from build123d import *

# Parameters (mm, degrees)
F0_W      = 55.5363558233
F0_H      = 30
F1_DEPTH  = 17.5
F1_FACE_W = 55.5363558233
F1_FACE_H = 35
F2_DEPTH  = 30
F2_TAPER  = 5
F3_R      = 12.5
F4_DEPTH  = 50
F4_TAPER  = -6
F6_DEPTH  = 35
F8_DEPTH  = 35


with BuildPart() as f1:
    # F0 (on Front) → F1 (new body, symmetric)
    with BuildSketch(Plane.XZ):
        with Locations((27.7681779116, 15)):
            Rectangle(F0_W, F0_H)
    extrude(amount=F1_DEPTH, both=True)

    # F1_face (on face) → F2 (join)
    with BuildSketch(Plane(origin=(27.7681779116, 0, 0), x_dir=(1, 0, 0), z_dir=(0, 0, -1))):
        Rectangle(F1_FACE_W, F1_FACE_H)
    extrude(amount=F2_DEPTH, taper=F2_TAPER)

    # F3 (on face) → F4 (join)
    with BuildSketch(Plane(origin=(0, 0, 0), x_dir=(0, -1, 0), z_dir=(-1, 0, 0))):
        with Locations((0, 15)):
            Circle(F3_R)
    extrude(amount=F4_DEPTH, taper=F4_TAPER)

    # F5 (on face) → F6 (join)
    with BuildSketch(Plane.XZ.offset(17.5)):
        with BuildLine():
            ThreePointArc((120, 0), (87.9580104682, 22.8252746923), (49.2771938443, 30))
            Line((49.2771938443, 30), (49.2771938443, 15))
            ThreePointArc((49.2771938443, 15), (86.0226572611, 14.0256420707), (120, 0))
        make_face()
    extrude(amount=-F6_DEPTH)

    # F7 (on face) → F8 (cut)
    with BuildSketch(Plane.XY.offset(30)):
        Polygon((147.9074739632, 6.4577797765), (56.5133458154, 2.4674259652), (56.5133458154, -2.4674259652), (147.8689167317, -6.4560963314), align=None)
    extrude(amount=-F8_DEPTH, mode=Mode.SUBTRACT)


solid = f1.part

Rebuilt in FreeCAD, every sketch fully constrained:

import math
import FreeCAD as App
import Part
import Sketcher
Q = App.Units.Quantity

doc = App.newDocument("Part")
body = doc.addObject("PartDesign::Body", "Body")

# Sketch on XZ plane
sketch1 = body.newObject("Sketcher::SketchObject", "Sketch")
sketch1.AttachmentSupport = (doc.getObject("XZ_Plane"), [""])
sketch1.MapMode = "FlatFace"
sketch1.addGeometry([
    Part.LineSegment(App.Vector(0, 30, 0), App.Vector(0, 0, 0)),
    Part.LineSegment(App.Vector(0, 0, 0), App.Vector(56, 0, 0)),
    Part.LineSegment(App.Vector(56, 0, 0), App.Vector(56, 30, 0)),
    Part.LineSegment(App.Vector(56, 30, 0), App.Vector(0, 30, 0)),
], False)
sketch1.addConstraint([
    Sketcher.Constraint("Coincident", 0, 2, 1, 1),
    Sketcher.Constraint("Coincident", 1, 2, 2, 1),
    Sketcher.Constraint("Coincident", 2, 2, 3, 1),
    Sketcher.Constraint("Coincident", 3, 2, 0, 1),
    Sketcher.Constraint("Vertical", 0),
    Sketcher.Constraint("Horizontal", 1),
    Sketcher.Constraint("Vertical", 2),
    Sketcher.Constraint("Horizontal", 3),
    Sketcher.Constraint("Coincident", 0, 2, -1, 1),
    Sketcher.Constraint("DistanceY", 0, 2, 0, 1, Q("30 mm")),
    Sketcher.Constraint("DistanceX", 1, 1, 1, 2, Q("55.536356 mm")),
])
pad1 = body.newObject("PartDesign::Pad", "Pad")
pad1.Profile = sketch1
pad1.Length = 35
pad1.Midplane = True

# Sketch on XY plane
sketch2 = body.newObject("Sketcher::SketchObject", "Sketch001")
sketch2.AttachmentSupport = (doc.getObject("XY_Plane"), [""])
sketch2.MapMode = "FlatFace"
sketch2.addGeometry([
    Part.LineSegment(App.Vector(0, -18, 0), App.Vector(0, 18, 0)),
    Part.LineSegment(App.Vector(0, 18, 0), App.Vector(56, 18, 0)),
    Part.LineSegment(App.Vector(56, 18, 0), App.Vector(56, -18, 0)),
    Part.LineSegment(App.Vector(56, -18, 0), App.Vector(0, -18, 0)),
], False)
sketch2.addConstraint([
    Sketcher.Constraint("Coincident", 0, 2, 1, 1),
    Sketcher.Constraint("Coincident", 1, 2, 2, 1),
    Sketcher.Constraint("Coincident", 2, 2, 3, 1),
    Sketcher.Constraint("Coincident", 3, 2, 0, 1),
    Sketcher.Constraint("Vertical", 0),
    Sketcher.Constraint("Horizontal", 1),
    Sketcher.Constraint("Vertical", 2),
    Sketcher.Constraint("Horizontal", 3),
    Sketcher.Constraint("Symmetric", 0, 2, 3, 2, -1, 1),
    Sketcher.Constraint("DistanceY", 0, 1, 0, 2, Q("35 mm")),
    Sketcher.Constraint("DistanceX", 1, 1, 1, 2, Q("55.536356 mm")),
])
pad2 = body.newObject("PartDesign::Pad", "Pad001")
pad2.Profile = sketch2
pad2.Length = 30
pad2.Reversed = True
pad2.TaperAngle = -5

# Sketch on YZ plane
sketch3 = body.newObject("Sketcher::SketchObject", "Sketch002")
sketch3.AttachmentSupport = (doc.getObject("YZ_Plane"), [""])
sketch3.MapMode = "FlatFace"
sketch3.addGeometry(Part.Circle(App.Vector(0, 15, 0), App.Vector(0, 0, 1), 12), False)
sketch3.addConstraint([
    Sketcher.Constraint("PointOnObject", 0, 3, -2),
    Sketcher.Constraint("Diameter", 0, Q("25 mm")),
    Sketcher.Constraint("DistanceY", -1, 1, 0, 3, Q("15 mm")),
])
pad3 = body.newObject("PartDesign::Pad", "Pad002")
pad3.Profile = sketch3
pad3.Length = 50
pad3.Reversed = True
pad3.TaperAngle = 6

# Sketch on XZ plane
sketch4 = body.newObject("Sketcher::SketchObject", "Sketch003")
sketch4.AttachmentSupport = (doc.getObject("XZ_Plane"), [""])
sketch4.MapMode = "FlatFace"
sketch4.AttachmentOffset = App.Placement(App.Vector(0, 0, 17.5), App.Rotation())
sketch4.addGeometry([
    Part.ArcOfCircle(Part.Circle(App.Vector(52, -61, 0), App.Vector(0, 0, 1), 91), math.radians(42), math.radians(92)),
    Part.LineSegment(App.Vector(49, 30, 0), App.Vector(49, 15, 0)),
    Part.ArcOfCircle(Part.Circle(App.Vector(65, -85, 0), App.Vector(0, 0, 1), 101), math.radians(57), math.radians(99)),
], False)
sketch4.addConstraint([
    Sketcher.Constraint("Coincident", 0, 2, 1, 1),
    Sketcher.Constraint("Coincident", 1, 2, 2, 2),
    Sketcher.Constraint("Coincident", 2, 1, 0, 1),
    Sketcher.Constraint("Vertical", 1),
    Sketcher.Constraint("PointOnObject", 2, 1, -1),
    Sketcher.Constraint("DistanceY", 1, 2, 1, 1, Q("15 mm")),
    Sketcher.Constraint("DistanceY", -1, 1, 0, 2, Q("30 mm")),
    Sketcher.Constraint("DistanceX", -1, 1, 2, 1, Q("120 mm")),
    Sketcher.Constraint("Radius", 0, Q("91.037972 mm")),
    Sketcher.Constraint("Radius", 2, Q("101.275531 mm")),
    Sketcher.Constraint("DistanceX", -1, 1, 2, 3, Q("65.009981 mm")),
])
pad4 = body.newObject("PartDesign::Pad", "Pad003")
pad4.Profile = sketch4
pad4.Length = 35
pad4.Reversed = True

# Sketch on XY plane
sketch5 = body.newObject("Sketcher::SketchObject", "Sketch004")
sketch5.AttachmentSupport = (doc.getObject("XY_Plane"), [""])
sketch5.MapMode = "FlatFace"
sketch5.AttachmentOffset = App.Placement(App.Vector(0, 0, 30), App.Rotation())
sketch5.addGeometry([
    Part.LineSegment(App.Vector(147.9, 6.5, 0), App.Vector(56.5, 2.5, 0)),
    Part.LineSegment(App.Vector(56.5, 2.5, 0), App.Vector(56.5, -2.5, 0)),
    Part.LineSegment(App.Vector(56.5, -2.5, 0), App.Vector(147.9, -6.5, 0)),
    Part.LineSegment(App.Vector(147.9, -6.5, 0), App.Vector(147.9, 6.5, 0)),
], False)
sketch5.addConstraint([
    Sketcher.Constraint("Coincident", 0, 2, 1, 1),
    Sketcher.Constraint("Coincident", 1, 2, 2, 1),
    Sketcher.Constraint("Coincident", 2, 2, 3, 1),
    Sketcher.Constraint("Coincident", 3, 2, 0, 1),
    Sketcher.Constraint("Vertical", 1),
    Sketcher.Constraint("Angle", 0, Q("-177.5 deg")),
    Sketcher.Constraint("Angle", 2, Q("-2.5 deg")),
    Sketcher.Constraint("DistanceY", 1, 2, 1, 1, Q("4.934852 mm")),
    Sketcher.Constraint("DistanceY", -1, 1, 3, 2, Q("6.45778 mm")),
    Sketcher.Constraint("DistanceX", 1, 2, 2, 2, Q("91.355571 mm")),
    Sketcher.Constraint("DistanceX", 0, 2, 3, 2, Q("91.394128 mm")),
    Sketcher.Constraint("DistanceX", -1, 1, 0, 2, Q("56.513346 mm")),
])
pocket1 = body.newObject("PartDesign::Pocket", "Pocket")
pocket1.Profile = sketch5
pocket1.Length = 35

doc.recompute()
